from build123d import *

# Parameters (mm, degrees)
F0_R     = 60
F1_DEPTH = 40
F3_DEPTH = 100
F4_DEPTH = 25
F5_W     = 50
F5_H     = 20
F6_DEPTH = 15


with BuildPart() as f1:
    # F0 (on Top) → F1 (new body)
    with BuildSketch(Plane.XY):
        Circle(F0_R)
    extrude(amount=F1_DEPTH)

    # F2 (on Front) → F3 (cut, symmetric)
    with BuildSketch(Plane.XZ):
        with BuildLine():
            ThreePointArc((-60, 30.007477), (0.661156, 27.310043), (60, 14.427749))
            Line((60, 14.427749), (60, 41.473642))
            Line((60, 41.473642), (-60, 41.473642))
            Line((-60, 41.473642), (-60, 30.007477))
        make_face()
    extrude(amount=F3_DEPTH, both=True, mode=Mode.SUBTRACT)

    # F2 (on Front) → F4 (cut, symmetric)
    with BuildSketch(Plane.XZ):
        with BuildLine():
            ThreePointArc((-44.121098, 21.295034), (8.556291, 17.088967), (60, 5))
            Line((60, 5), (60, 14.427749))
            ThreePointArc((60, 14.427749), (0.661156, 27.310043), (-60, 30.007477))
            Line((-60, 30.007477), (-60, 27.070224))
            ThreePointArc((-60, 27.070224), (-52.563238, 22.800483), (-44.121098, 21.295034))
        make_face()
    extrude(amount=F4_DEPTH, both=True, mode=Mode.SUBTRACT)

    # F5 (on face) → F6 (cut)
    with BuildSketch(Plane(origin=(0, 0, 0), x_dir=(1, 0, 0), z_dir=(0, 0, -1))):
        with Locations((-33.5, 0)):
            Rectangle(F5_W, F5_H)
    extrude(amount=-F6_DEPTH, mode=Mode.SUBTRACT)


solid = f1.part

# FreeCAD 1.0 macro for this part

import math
import FreeCAD as App
import Part
import Sketcher


def add_polygon(sketch, points):
    """Adds a closed chain of lines whose ends are joined by coincident constraints."""
    first, n = sketch.GeometryCount, len(points)
    for a, b in zip(points, points[1:] + points[:1]):
        sketch.addGeometry(Part.LineSegment(App.Vector(*a, 0), App.Vector(*b, 0)), False)
    for i in range(n):
        sketch.addConstraint(Sketcher.Constraint("Coincident", first + i, 2, first + (i + 1) % n, 1))

doc = App.newDocument("Part")
params = doc.addObject("Spreadsheet::Sheet", "Params")
for row, (alias, value) in enumerate([
    ("sketch1_diameter", "120 mm"),
    ("pad1_length", "40 mm"),
    ("sketch2_width", "120 mm"),
    ("pocket1_length", "200 mm"),
    ("sketch3_radius", "25 mm"),
    ("pocket2_length", "50 mm"),
    ("sketch4_width", "50 mm"),
    ("sketch4_height", "20 mm"),
    ("pocket3_length", "15 mm"),
], start=1):
    params.set(f"A{row}", alias)
    params.set(f"B{row}", "=" + value)
    params.setAlias(f"B{row}", alias)

body = doc.addObject("PartDesign::Body", "Body")

sketch1 = body.newObject("Sketcher::SketchObject", "Sketch")
sketch1.AttachmentSupport = (doc.getObject("XY_Plane"), [""])
sketch1.MapMode = "FlatFace"
sketch1.addGeometry(Part.Circle(App.Vector(0, 0, 0), App.Vector(0, 0, 1), 60), False)
sketch1.addConstraint(Sketcher.Constraint("Coincident", 0, 3, -1, 1))
sketch1.addConstraint(Sketcher.Constraint("Diameter", 0, 120.0))
sketch1.setExpression("Constraints[1]", "Params.sketch1_diameter")
pad1 = body.newObject("PartDesign::Pad", "Pad")
pad1.Profile = sketch1
pad1.setExpression("Length", "Params.pad1_length")

sketch2 = body.newObject("Sketcher::SketchObject", "Sketch001")
sketch2.AttachmentSupport = (doc.getObject("XZ_Plane"), [""])
sketch2.MapMode = "FlatFace"
sketch2.addGeometry(Part.ArcOfCircle(Part.Circle(App.Vector(-46, -329, 0), App.Vector(0, 0, 1), 359), math.radians(72.9), math.radians(92.31)), False)
sketch2.addGeometry(Part.LineSegment(App.Vector(60, 14, 0), App.Vector(60, 41, 0)), False)
sketch2.addGeometry(Part.LineSegment(App.Vector(60, 41, 0), App.Vector(-60, 41, 0)), False)
sketch2.addGeometry(Part.LineSegment(App.Vector(-60, 41, 0), App.Vector(-60, 30, 0)), False)
sketch2.addConstraint(Sketcher.Constraint("Coincident", 0, 1, 1, 1))
sketch2.addConstraint(Sketcher.Constraint("Coincident", 1, 2, 2, 1))
sketch2.addConstraint(Sketcher.Constraint("Coincident", 2, 2, 3, 1))
sketch2.addConstraint(Sketcher.Constraint("Coincident", 3, 2, 0, 2))
sketch2.addConstraint(Sketcher.Constraint("Vertical", 1))
sketch2.addConstraint(Sketcher.Constraint("Horizontal", 2))
sketch2.addConstraint(Sketcher.Constraint("Vertical", 3))
sketch2.addConstraint(Sketcher.Constraint("DistanceX", 2, 2, 2, 1, 120.0))
sketch2.addConstraint(Sketcher.Constraint("DistanceX", -1, 1, 1, 2, 60.0))
sketch2.addConstraint(Sketcher.Constraint("Radius", 0, 358.999992))
sketch2.addConstraint(Sketcher.Constraint("DistanceY", 0, 3, -1, 1, 328.701999))
sketch2.addConstraint(Sketcher.Constraint("DistanceY", 1, 1, 1, 2, 27.045893))
sketch2.addConstraint(Sketcher.Constraint("DistanceY", 3, 2, 3, 1, 11.466165))
sketch2.setExpression("Constraints[7]", "Params.sketch2_width")
pocket1 = body.newObject("PartDesign::Pocket", "Pocket")
pocket1.Profile = sketch2
pocket1.setExpression("Length", "Params.pocket1_length")
pocket1.Midplane = True

sketch3 = body.newObject("Sketcher::SketchObject", "Sketch002")
sketch3.AttachmentSupport = (doc.getObject("XZ_Plane"), [""])
sketch3.MapMode = "FlatFace"
sketch3.addGeometry(Part.ArcOfCircle(Part.Circle(App.Vector(-45.6, -328.7, 0), App.Vector(0, 0, 1), 350), math.radians(72.45), math.radians(89.76)), False)
sketch3.addGeometry(Part.LineSegment(App.Vector(60, 5, 0), App.Vector(60, 14.4, 0)), False)
sketch3.addGeometry(Part.ArcOfCircle(Part.Circle(App.Vector(-45.6, -328.7, 0), App.Vector(0, 0, 1), 359), math.radians(72.9), math.radians(92.31)), False)
sketch3.addGeometry(Part.LineSegment(App.Vector(-60, 30, 0), App.Vector(-60, 27.1, 0)), False)
sketch3.addGeometry(Part.ArcOfCircle(Part.Circle(App.Vector(-44, 46.3, 0), App.Vector(0, 0, 1), 25), math.radians(-130), math.radians(-90)), False)
sketch3.addConstraint(Sketcher.Constraint("Coincident", 0, 1, 1, 1))
sketch3.addConstraint(Sketcher.Constraint("Coincident", 1, 2, 2, 1))
sketch3.addConstraint(Sketcher.Constraint("Coincident", 2, 2, 3, 1))
sketch3.addConstraint(Sketcher.Constraint("Coincident", 3, 2, 4, 1))
sketch3.addConstraint(Sketcher.Constraint("Tangent", 4, 2, 0, 2))
sketch3.addConstraint(Sketcher.Constraint("Vertical", 1))
sketch3.addConstraint(Sketcher.Constraint("Vertical", 3))
sketch3.addConstraint(Sketcher.Constraint("Radius", 4, 25.0))
sketch3.addConstraint(Sketcher.Constraint("DistanceX", -1, 1, 0, 1, 60.0))
sketch3.addConstraint(Sketcher.Constraint("DistanceY", -1, 1, 0, 1, 5.0))
sketch3.addConstraint(Sketcher.Constraint("DistanceX", 3, 2, -1, 1, 60.0))
sketch3.addConstraint(Sketcher.Constraint("Radius", 2, 358.999992))
sketch3.addConstraint(Sketcher.Constraint("DistanceY", 2, 3, -1, 1, 328.701999))
sketch3.addConstraint(Sketcher.Constraint("Radius", 0, 350.000016))
sketch3.addConstraint(Sketcher.Constraint("DistanceY", 1, 1, 1, 2, 9.427749))
sketch3.addConstraint(Sketcher.Constraint("DistanceX", 4, 2, -1, 1, 44.121098))
sketch3.addConstraint(Sketcher.Constraint("DistanceY", 0, 3, 2, 2, 358.7095))
sketch3.setExpression("Constraints[7]", "Params.sketch3_radius")
pocket2 = body.newObject("PartDesign::Pocket", "Pocket001")
pocket2.Profile = sketch3
pocket2.setExpression("Length", "Params.pocket2_length")
pocket2.Midplane = True

sketch4 = body.newObject("Sketcher::SketchObject", "Sketch003")
sketch4.AttachmentSupport = (doc.getObject("XY_Plane"), [""])
sketch4.MapMode = "FlatFace"
add_polygon(sketch4, [(-58, -10), (-58, 10), (-8, 10), (-8, -10)])
sketch4.addConstraint(Sketcher.Constraint("Vertical", 0))
sketch4.addConstraint(Sketcher.Constraint("Horizontal", 1))
sketch4.addConstraint(Sketcher.Constraint("Vertical", 2))
sketch4.addConstraint(Sketcher.Constraint("Horizontal", 3))
sketch4.addConstraint(Sketcher.Constraint("DistanceX", 1, 1, 1, 2, 50.0))
sketch4.addConstraint(Sketcher.Constraint("DistanceY", 0, 1, 0, 2, 20.0))
sketch4.addConstraint(Sketcher.Constraint("DistanceY", -1, 1, 0, 2, 10.0))
sketch4.addConstraint(Sketcher.Constraint("DistanceX", 0, 2, -1, 1, 58.5))
sketch4.setExpression("Constraints[8]", "Params.sketch4_width")
sketch4.setExpression("Constraints[9]", "Params.sketch4_height")
pocket3 = body.newObject("PartDesign::Pocket", "Pocket002")
pocket3.Profile = sketch4
pocket3.setExpression("Length", "Params.pocket3_length")
pocket3.Reversed = True

doc.recompute()
